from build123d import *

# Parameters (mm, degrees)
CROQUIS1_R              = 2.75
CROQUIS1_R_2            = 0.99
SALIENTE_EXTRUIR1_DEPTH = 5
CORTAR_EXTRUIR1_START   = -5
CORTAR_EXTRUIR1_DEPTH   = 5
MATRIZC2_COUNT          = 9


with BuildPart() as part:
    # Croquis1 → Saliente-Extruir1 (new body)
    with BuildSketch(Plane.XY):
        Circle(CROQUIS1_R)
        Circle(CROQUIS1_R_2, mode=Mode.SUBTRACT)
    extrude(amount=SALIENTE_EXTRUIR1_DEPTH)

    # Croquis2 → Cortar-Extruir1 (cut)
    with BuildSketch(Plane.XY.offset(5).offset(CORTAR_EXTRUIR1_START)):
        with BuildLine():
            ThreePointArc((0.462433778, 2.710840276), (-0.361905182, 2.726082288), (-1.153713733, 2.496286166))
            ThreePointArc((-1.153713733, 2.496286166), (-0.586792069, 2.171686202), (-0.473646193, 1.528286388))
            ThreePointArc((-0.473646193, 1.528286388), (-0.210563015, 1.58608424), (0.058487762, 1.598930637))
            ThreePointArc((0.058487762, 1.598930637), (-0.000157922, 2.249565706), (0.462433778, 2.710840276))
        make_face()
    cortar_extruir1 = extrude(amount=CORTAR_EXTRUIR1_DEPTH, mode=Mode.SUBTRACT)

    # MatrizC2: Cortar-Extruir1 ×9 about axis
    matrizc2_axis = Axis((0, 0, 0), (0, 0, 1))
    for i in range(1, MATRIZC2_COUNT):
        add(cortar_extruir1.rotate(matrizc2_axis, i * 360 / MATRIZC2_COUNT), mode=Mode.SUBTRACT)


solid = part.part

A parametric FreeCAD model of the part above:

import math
import FreeCAD as App
import Part
import Sketcher

V = App.Vector
Q = App.Units.Quantity

doc = App.newDocument("Part")
body = doc.addObject("PartDesign::Body", "Body")

# Sketch on XY plane
sketch1 = body.newObject("Sketcher::SketchObject", "Sketch")
sketch1.AttachmentSupport = (doc.getObject("XY_Plane"), [""])
sketch1.MapMode = "FlatFace"
sketch1.addGeometry(Part.Circle(V(0, 0, 0), V(0, 0, 1), 2.75), False)
sketch1.addGeometry(Part.Circle(V(0, 0, 0), V(0, 0, 1), 0.99), False)
sketch1.addConstraint(Sketcher.Constraint("Coincident", 0, 3, -1, 1))
sketch1.addConstraint(Sketcher.Constraint("Coincident", 1, 3, -1, 1))
sketch1.addConstraint(Sketcher.Constraint("Diameter", 0, Q("5.5 mm")))
sketch1.addConstraint(Sketcher.Constraint("Diameter", 1, Q("1.98 mm")))
pad1 = body.newObject("PartDesign::Pad", "Pad")
pad1.Profile = sketch1
pad1.Length = 5

# Sketch on XY plane
sketch2 = body.newObject("Sketcher::SketchObject", "Sketch001")
sketch2.AttachmentSupport = (doc.getObject("XY_Plane"), [""])
sketch2.MapMode = "FlatFace"
sketch2.addGeometry(Part.ArcOfCircle(Part.Circle(V(0, 0, 0), V(0, 0, 1), 2.75), math.radians(80.319277), math.radians(114.805061)), False)
sketch2.addGeometry(Part.ArcOfCircle(Part.Circle(V(-1.216473, 1.729304, 0), V(0, 0, 1), 0.769545), math.radians(-15.142251), math.radians(85.322114)), False)
sketch2.addGeometry(Part.ArcOfCircle(Part.Circle(V(0, 0, 0), V(0, 0, 1), 1.6), math.radians(87.905095), math.radians(107.219243)), False)
sketch2.addGeometry(Part.ArcOfCircle(Part.Circle(V(0.723136, 1.9868, 0), V(0, 0, 1), 0.769545), math.radians(109.802224), math.radians(210.266589)), False)
sketch2.addConstraint(Sketcher.Constraint("Coincident", 0, 2, 1, 2))
sketch2.addConstraint(Sketcher.Constraint("Coincident", 1, 1, 2, 2))
sketch2.addConstraint(Sketcher.Constraint("Coincident", 2, 1, 3, 2))
sketch2.addConstraint(Sketcher.Constraint("Coincident", 3, 1, 0, 1))
sketch2.addConstraint(Sketcher.Constraint("Coincident", 0, 3, -1, 1))
sketch2.addConstraint(Sketcher.Constraint("Coincident", 2, 3, -1, 1))
sketch2.addConstraint(Sketcher.Constraint("Equal", 1, 3))
sketch2.addConstraint(Sketcher.Constraint("Radius", 2, Q("1.6 mm")))
sketch2.addConstraint(Sketcher.Constraint("Radius", 0, Q("2.75 mm")))
sketch2.addConstraint(Sketcher.Constraint("Radius", 1, Q("0.769545 mm")))
sketch2.addConstraint(Sketcher.Constraint("DistanceY", 1, 1, 0, 2, Q("0.968 mm")))
sketch2.addConstraint(Sketcher.Constraint("DistanceY", -1, 1, 3, 3, Q("1.9868 mm")))
sketch2.addConstraint(Sketcher.Constraint("DistanceX", 0, 2, 2, 1, Q("1.212201 mm")))
sketch2.addConstraint(Sketcher.Constraint("DistanceY", -1, 1, 2, 1, Q("1.598931 mm")))
pocket1 = body.newObject("PartDesign::Pocket", "Pocket")
pocket1.Profile = sketch2
pocket1.Length = 5
pocket1.Reversed = True
doc.recompute()

polarpattern = body.newObject("PartDesign::PolarPattern", "PolarPattern")
polarpattern.Originals = [pocket1]
polarpattern.Axis = (doc.getObject("Z_Axis"), [""])
polarpattern.Angle = 360
polarpattern.Occurrences = 9
body.Tip = polarpattern

doc.recompute()
